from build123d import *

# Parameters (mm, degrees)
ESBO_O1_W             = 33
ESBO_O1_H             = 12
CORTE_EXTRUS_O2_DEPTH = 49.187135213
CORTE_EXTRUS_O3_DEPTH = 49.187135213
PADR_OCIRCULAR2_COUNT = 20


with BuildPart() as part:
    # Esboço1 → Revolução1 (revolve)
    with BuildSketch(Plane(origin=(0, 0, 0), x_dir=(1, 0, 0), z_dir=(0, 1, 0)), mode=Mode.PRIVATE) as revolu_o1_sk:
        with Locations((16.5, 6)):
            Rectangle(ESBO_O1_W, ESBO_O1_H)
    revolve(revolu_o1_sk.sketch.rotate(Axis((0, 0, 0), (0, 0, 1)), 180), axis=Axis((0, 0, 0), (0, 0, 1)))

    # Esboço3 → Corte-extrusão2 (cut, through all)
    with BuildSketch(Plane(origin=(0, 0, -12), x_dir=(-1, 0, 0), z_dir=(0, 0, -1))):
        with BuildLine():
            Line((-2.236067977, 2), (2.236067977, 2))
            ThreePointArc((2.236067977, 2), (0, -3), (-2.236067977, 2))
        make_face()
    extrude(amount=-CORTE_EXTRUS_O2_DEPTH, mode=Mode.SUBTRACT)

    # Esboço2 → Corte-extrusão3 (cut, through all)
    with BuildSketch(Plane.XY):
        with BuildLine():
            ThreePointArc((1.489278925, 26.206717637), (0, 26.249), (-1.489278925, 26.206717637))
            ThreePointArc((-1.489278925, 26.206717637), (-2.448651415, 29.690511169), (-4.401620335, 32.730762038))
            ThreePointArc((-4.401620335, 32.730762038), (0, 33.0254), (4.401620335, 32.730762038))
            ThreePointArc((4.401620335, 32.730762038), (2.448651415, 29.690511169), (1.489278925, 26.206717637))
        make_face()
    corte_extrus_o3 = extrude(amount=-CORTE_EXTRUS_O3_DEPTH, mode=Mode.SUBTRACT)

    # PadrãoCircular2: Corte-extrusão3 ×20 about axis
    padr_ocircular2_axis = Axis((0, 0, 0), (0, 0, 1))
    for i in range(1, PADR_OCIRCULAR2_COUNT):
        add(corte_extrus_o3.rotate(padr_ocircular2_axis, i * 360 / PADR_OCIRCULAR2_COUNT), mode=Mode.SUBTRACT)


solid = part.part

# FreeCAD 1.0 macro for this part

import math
import FreeCAD as App
import Part
import Sketcher
from FreeCAD import Vector
Q = App.Units.Quantity


def add_polygon(sketch, points):
    """Adds a closed chain of lines whose ends are joined by coincident constraints."""
    first, n = sketch.GeometryCount, len(points)
    for a, b in zip(points, points[1:] + points[:1]):
        sketch.addGeometry(Part.LineSegment(App.Vector(*a, 0), App.Vector(*b, 0)), False)
    for i in range(n):
        sketch.addConstraint(Sketcher.Constraint("Coincident", first + i, 2, first + (i + 1) % n, 1))

doc = App.newDocument("Part")
body = doc.addObject("PartDesign::Body", "Body")

sketch1 = body.newObject("Sketcher::SketchObject", "Sketch")
sketch1.AttachmentSupport = (doc.getObject("XZ_Plane"), [""])
sketch1.MapMode = "FlatFace"
add_polygon(sketch1, [(0, -12), (0, 0), (33, 0), (33, -12)])
sketch1.addConstraint(Sketcher.Constraint("Vertical", 0))
sketch1.addConstraint(Sketcher.Constraint("Horizontal", 1))
sketch1.addConstraint(Sketcher.Constraint("Vertical", 2))
sketch1.addConstraint(Sketcher.Constraint("Horizontal", 3))
sketch1.addConstraint(Sketcher.Constraint("Coincident", 0, 2, -1, 1))
sketch1.addConstraint(Sketcher.Constraint("DistanceX", 1, 1, 1, 2, Q("33 mm")))
sketch1.addConstraint(Sketcher.Constraint("DistanceY", 0, 1, 0, 2, Q("12 mm")))
revolution = body.newObject("PartDesign::Revolution", "Revolution")
revolution.Profile = sketch1
revolution.ReferenceAxis = (sketch1, ["V_Axis"])
revolution.Angle = 360

sketch2 = body.newObject("Sketcher::SketchObject", "Sketch001")
sketch2.AttachmentSupport = (doc.getObject("XY_Plane"), [""])
sketch2.MapMode = "FlatFace"
sketch2.AttachmentOffset = App.Placement(Vector(0, 0, -12), App.Rotation())
sketch2.addGeometry(Part.LineSegment(Vector(-2.2, 2, 0), Vector(2.2, 2, 0)), False)
sketch2.addGeometry(Part.ArcOfCircle(Part.Circle(Vector(0, 0, 0), Vector(0, 0, 1), 3), math.radians(138), math.radians(402)), False)
sketch2.addConstraint(Sketcher.Constraint("Coincident", 0, 1, 1, 1))
sketch2.addConstraint(Sketcher.Constraint("Coincident", 1, 2, 0, 2))
sketch2.addConstraint(Sketcher.Constraint("Horizontal", 0))
sketch2.addConstraint(Sketcher.Constraint("Coincident", 1, 3, -1, 1))
sketch2.addConstraint(Sketcher.Constraint("Radius", 1, Q("3 mm")))
sketch2.addConstraint(Sketcher.Constraint("DistanceY", -1, 1, 0, 1, Q("2 mm")))
pocket1 = body.newObject("PartDesign::Pocket", "Pocket")
pocket1.Profile = sketch2
pocket1.Type = "ThroughAll"
pocket1.Reversed = True

sketch3 = body.newObject("Sketcher::SketchObject", "Sketch002")
sketch3.AttachmentSupport = (doc.getObject("XY_Plane"), [""])
sketch3.MapMode = "FlatFace"
sketch3.addGeometry(Part.ArcOfCircle(Part.Circle(Vector(0, 0, 0), Vector(0, 0, 1), 26.2), math.radians(86.75), math.radians(93.25)), False)
sketch3.addGeometry(Part.ArcOfCircle(Part.Circle(Vector(13.4, 24.8, 0), Vector(0, 0, 1), 12), math.radians(139), math.radians(173)), False)
sketch3.addGeometry(Part.ArcOfCircle(Part.Circle(Vector(0, 0, 0), Vector(0, 0, 1), 33), math.radians(82.34), math.radians(97.66)), False)
sketch3.addGeometry(Part.ArcOfCircle(Part.Circle(Vector(-13.4, 24.8, 0), Vector(0, 0, 1), 12), math.radians(7), math.radians(41)), False)
sketch3.addConstraint(Sketcher.Constraint("Coincident", 0, 1, 1, 2))
sketch3.addConstraint(Sketcher.Constraint("Coincident", 1, 1, 2, 1))
sketch3.addConstraint(Sketcher.Constraint("Coincident", 2, 2, 3, 2))
sketch3.addConstraint(Sketcher.Constraint("Coincident", 3, 1, 0, 2))
sketch3.addConstraint(Sketcher.Constraint("Coincident", 0, 3, -1, 1))
sketch3.addConstraint(Sketcher.Constraint("Coincident", 2, 3, -1, 1))
sketch3.addConstraint(Sketcher.Constraint("Equal", 1, 3))
sketch3.addConstraint(Sketcher.Constraint("Symmetric", 1, 3, 3, 3, -2))
sketch3.addConstraint(Sketcher.Constraint("Radius", 1, Q("12 mm")))
sketch3.addConstraint(Sketcher.Constraint("Radius", 0, Q("26.249 mm")))
sketch3.addConstraint(Sketcher.Constraint("Radius", 2, Q("33.0254 mm")))
sketch3.addConstraint(Sketcher.Constraint("DistanceX", 2, 2, 0, 1, Q("5.890899 mm")))
sketch3.addConstraint(Sketcher.Constraint("DistanceY", -1, 1, 1, 3, Q("24.798951 mm")))
pocket2 = body.newObject("PartDesign::Pocket", "Pocket001")
pocket2.Profile = sketch3
pocket2.Type = "ThroughAll"
doc.recompute()

polarpattern = body.newObject("PartDesign::PolarPattern", "PolarPattern")
polarpattern.Originals = [pocket2]
polarpattern.Axis = (doc.getObject("Z_Axis"), [""])
polarpattern.Angle = 360
polarpattern.Occurrences = 20
body.Tip = polarpattern

doc.recompute()
